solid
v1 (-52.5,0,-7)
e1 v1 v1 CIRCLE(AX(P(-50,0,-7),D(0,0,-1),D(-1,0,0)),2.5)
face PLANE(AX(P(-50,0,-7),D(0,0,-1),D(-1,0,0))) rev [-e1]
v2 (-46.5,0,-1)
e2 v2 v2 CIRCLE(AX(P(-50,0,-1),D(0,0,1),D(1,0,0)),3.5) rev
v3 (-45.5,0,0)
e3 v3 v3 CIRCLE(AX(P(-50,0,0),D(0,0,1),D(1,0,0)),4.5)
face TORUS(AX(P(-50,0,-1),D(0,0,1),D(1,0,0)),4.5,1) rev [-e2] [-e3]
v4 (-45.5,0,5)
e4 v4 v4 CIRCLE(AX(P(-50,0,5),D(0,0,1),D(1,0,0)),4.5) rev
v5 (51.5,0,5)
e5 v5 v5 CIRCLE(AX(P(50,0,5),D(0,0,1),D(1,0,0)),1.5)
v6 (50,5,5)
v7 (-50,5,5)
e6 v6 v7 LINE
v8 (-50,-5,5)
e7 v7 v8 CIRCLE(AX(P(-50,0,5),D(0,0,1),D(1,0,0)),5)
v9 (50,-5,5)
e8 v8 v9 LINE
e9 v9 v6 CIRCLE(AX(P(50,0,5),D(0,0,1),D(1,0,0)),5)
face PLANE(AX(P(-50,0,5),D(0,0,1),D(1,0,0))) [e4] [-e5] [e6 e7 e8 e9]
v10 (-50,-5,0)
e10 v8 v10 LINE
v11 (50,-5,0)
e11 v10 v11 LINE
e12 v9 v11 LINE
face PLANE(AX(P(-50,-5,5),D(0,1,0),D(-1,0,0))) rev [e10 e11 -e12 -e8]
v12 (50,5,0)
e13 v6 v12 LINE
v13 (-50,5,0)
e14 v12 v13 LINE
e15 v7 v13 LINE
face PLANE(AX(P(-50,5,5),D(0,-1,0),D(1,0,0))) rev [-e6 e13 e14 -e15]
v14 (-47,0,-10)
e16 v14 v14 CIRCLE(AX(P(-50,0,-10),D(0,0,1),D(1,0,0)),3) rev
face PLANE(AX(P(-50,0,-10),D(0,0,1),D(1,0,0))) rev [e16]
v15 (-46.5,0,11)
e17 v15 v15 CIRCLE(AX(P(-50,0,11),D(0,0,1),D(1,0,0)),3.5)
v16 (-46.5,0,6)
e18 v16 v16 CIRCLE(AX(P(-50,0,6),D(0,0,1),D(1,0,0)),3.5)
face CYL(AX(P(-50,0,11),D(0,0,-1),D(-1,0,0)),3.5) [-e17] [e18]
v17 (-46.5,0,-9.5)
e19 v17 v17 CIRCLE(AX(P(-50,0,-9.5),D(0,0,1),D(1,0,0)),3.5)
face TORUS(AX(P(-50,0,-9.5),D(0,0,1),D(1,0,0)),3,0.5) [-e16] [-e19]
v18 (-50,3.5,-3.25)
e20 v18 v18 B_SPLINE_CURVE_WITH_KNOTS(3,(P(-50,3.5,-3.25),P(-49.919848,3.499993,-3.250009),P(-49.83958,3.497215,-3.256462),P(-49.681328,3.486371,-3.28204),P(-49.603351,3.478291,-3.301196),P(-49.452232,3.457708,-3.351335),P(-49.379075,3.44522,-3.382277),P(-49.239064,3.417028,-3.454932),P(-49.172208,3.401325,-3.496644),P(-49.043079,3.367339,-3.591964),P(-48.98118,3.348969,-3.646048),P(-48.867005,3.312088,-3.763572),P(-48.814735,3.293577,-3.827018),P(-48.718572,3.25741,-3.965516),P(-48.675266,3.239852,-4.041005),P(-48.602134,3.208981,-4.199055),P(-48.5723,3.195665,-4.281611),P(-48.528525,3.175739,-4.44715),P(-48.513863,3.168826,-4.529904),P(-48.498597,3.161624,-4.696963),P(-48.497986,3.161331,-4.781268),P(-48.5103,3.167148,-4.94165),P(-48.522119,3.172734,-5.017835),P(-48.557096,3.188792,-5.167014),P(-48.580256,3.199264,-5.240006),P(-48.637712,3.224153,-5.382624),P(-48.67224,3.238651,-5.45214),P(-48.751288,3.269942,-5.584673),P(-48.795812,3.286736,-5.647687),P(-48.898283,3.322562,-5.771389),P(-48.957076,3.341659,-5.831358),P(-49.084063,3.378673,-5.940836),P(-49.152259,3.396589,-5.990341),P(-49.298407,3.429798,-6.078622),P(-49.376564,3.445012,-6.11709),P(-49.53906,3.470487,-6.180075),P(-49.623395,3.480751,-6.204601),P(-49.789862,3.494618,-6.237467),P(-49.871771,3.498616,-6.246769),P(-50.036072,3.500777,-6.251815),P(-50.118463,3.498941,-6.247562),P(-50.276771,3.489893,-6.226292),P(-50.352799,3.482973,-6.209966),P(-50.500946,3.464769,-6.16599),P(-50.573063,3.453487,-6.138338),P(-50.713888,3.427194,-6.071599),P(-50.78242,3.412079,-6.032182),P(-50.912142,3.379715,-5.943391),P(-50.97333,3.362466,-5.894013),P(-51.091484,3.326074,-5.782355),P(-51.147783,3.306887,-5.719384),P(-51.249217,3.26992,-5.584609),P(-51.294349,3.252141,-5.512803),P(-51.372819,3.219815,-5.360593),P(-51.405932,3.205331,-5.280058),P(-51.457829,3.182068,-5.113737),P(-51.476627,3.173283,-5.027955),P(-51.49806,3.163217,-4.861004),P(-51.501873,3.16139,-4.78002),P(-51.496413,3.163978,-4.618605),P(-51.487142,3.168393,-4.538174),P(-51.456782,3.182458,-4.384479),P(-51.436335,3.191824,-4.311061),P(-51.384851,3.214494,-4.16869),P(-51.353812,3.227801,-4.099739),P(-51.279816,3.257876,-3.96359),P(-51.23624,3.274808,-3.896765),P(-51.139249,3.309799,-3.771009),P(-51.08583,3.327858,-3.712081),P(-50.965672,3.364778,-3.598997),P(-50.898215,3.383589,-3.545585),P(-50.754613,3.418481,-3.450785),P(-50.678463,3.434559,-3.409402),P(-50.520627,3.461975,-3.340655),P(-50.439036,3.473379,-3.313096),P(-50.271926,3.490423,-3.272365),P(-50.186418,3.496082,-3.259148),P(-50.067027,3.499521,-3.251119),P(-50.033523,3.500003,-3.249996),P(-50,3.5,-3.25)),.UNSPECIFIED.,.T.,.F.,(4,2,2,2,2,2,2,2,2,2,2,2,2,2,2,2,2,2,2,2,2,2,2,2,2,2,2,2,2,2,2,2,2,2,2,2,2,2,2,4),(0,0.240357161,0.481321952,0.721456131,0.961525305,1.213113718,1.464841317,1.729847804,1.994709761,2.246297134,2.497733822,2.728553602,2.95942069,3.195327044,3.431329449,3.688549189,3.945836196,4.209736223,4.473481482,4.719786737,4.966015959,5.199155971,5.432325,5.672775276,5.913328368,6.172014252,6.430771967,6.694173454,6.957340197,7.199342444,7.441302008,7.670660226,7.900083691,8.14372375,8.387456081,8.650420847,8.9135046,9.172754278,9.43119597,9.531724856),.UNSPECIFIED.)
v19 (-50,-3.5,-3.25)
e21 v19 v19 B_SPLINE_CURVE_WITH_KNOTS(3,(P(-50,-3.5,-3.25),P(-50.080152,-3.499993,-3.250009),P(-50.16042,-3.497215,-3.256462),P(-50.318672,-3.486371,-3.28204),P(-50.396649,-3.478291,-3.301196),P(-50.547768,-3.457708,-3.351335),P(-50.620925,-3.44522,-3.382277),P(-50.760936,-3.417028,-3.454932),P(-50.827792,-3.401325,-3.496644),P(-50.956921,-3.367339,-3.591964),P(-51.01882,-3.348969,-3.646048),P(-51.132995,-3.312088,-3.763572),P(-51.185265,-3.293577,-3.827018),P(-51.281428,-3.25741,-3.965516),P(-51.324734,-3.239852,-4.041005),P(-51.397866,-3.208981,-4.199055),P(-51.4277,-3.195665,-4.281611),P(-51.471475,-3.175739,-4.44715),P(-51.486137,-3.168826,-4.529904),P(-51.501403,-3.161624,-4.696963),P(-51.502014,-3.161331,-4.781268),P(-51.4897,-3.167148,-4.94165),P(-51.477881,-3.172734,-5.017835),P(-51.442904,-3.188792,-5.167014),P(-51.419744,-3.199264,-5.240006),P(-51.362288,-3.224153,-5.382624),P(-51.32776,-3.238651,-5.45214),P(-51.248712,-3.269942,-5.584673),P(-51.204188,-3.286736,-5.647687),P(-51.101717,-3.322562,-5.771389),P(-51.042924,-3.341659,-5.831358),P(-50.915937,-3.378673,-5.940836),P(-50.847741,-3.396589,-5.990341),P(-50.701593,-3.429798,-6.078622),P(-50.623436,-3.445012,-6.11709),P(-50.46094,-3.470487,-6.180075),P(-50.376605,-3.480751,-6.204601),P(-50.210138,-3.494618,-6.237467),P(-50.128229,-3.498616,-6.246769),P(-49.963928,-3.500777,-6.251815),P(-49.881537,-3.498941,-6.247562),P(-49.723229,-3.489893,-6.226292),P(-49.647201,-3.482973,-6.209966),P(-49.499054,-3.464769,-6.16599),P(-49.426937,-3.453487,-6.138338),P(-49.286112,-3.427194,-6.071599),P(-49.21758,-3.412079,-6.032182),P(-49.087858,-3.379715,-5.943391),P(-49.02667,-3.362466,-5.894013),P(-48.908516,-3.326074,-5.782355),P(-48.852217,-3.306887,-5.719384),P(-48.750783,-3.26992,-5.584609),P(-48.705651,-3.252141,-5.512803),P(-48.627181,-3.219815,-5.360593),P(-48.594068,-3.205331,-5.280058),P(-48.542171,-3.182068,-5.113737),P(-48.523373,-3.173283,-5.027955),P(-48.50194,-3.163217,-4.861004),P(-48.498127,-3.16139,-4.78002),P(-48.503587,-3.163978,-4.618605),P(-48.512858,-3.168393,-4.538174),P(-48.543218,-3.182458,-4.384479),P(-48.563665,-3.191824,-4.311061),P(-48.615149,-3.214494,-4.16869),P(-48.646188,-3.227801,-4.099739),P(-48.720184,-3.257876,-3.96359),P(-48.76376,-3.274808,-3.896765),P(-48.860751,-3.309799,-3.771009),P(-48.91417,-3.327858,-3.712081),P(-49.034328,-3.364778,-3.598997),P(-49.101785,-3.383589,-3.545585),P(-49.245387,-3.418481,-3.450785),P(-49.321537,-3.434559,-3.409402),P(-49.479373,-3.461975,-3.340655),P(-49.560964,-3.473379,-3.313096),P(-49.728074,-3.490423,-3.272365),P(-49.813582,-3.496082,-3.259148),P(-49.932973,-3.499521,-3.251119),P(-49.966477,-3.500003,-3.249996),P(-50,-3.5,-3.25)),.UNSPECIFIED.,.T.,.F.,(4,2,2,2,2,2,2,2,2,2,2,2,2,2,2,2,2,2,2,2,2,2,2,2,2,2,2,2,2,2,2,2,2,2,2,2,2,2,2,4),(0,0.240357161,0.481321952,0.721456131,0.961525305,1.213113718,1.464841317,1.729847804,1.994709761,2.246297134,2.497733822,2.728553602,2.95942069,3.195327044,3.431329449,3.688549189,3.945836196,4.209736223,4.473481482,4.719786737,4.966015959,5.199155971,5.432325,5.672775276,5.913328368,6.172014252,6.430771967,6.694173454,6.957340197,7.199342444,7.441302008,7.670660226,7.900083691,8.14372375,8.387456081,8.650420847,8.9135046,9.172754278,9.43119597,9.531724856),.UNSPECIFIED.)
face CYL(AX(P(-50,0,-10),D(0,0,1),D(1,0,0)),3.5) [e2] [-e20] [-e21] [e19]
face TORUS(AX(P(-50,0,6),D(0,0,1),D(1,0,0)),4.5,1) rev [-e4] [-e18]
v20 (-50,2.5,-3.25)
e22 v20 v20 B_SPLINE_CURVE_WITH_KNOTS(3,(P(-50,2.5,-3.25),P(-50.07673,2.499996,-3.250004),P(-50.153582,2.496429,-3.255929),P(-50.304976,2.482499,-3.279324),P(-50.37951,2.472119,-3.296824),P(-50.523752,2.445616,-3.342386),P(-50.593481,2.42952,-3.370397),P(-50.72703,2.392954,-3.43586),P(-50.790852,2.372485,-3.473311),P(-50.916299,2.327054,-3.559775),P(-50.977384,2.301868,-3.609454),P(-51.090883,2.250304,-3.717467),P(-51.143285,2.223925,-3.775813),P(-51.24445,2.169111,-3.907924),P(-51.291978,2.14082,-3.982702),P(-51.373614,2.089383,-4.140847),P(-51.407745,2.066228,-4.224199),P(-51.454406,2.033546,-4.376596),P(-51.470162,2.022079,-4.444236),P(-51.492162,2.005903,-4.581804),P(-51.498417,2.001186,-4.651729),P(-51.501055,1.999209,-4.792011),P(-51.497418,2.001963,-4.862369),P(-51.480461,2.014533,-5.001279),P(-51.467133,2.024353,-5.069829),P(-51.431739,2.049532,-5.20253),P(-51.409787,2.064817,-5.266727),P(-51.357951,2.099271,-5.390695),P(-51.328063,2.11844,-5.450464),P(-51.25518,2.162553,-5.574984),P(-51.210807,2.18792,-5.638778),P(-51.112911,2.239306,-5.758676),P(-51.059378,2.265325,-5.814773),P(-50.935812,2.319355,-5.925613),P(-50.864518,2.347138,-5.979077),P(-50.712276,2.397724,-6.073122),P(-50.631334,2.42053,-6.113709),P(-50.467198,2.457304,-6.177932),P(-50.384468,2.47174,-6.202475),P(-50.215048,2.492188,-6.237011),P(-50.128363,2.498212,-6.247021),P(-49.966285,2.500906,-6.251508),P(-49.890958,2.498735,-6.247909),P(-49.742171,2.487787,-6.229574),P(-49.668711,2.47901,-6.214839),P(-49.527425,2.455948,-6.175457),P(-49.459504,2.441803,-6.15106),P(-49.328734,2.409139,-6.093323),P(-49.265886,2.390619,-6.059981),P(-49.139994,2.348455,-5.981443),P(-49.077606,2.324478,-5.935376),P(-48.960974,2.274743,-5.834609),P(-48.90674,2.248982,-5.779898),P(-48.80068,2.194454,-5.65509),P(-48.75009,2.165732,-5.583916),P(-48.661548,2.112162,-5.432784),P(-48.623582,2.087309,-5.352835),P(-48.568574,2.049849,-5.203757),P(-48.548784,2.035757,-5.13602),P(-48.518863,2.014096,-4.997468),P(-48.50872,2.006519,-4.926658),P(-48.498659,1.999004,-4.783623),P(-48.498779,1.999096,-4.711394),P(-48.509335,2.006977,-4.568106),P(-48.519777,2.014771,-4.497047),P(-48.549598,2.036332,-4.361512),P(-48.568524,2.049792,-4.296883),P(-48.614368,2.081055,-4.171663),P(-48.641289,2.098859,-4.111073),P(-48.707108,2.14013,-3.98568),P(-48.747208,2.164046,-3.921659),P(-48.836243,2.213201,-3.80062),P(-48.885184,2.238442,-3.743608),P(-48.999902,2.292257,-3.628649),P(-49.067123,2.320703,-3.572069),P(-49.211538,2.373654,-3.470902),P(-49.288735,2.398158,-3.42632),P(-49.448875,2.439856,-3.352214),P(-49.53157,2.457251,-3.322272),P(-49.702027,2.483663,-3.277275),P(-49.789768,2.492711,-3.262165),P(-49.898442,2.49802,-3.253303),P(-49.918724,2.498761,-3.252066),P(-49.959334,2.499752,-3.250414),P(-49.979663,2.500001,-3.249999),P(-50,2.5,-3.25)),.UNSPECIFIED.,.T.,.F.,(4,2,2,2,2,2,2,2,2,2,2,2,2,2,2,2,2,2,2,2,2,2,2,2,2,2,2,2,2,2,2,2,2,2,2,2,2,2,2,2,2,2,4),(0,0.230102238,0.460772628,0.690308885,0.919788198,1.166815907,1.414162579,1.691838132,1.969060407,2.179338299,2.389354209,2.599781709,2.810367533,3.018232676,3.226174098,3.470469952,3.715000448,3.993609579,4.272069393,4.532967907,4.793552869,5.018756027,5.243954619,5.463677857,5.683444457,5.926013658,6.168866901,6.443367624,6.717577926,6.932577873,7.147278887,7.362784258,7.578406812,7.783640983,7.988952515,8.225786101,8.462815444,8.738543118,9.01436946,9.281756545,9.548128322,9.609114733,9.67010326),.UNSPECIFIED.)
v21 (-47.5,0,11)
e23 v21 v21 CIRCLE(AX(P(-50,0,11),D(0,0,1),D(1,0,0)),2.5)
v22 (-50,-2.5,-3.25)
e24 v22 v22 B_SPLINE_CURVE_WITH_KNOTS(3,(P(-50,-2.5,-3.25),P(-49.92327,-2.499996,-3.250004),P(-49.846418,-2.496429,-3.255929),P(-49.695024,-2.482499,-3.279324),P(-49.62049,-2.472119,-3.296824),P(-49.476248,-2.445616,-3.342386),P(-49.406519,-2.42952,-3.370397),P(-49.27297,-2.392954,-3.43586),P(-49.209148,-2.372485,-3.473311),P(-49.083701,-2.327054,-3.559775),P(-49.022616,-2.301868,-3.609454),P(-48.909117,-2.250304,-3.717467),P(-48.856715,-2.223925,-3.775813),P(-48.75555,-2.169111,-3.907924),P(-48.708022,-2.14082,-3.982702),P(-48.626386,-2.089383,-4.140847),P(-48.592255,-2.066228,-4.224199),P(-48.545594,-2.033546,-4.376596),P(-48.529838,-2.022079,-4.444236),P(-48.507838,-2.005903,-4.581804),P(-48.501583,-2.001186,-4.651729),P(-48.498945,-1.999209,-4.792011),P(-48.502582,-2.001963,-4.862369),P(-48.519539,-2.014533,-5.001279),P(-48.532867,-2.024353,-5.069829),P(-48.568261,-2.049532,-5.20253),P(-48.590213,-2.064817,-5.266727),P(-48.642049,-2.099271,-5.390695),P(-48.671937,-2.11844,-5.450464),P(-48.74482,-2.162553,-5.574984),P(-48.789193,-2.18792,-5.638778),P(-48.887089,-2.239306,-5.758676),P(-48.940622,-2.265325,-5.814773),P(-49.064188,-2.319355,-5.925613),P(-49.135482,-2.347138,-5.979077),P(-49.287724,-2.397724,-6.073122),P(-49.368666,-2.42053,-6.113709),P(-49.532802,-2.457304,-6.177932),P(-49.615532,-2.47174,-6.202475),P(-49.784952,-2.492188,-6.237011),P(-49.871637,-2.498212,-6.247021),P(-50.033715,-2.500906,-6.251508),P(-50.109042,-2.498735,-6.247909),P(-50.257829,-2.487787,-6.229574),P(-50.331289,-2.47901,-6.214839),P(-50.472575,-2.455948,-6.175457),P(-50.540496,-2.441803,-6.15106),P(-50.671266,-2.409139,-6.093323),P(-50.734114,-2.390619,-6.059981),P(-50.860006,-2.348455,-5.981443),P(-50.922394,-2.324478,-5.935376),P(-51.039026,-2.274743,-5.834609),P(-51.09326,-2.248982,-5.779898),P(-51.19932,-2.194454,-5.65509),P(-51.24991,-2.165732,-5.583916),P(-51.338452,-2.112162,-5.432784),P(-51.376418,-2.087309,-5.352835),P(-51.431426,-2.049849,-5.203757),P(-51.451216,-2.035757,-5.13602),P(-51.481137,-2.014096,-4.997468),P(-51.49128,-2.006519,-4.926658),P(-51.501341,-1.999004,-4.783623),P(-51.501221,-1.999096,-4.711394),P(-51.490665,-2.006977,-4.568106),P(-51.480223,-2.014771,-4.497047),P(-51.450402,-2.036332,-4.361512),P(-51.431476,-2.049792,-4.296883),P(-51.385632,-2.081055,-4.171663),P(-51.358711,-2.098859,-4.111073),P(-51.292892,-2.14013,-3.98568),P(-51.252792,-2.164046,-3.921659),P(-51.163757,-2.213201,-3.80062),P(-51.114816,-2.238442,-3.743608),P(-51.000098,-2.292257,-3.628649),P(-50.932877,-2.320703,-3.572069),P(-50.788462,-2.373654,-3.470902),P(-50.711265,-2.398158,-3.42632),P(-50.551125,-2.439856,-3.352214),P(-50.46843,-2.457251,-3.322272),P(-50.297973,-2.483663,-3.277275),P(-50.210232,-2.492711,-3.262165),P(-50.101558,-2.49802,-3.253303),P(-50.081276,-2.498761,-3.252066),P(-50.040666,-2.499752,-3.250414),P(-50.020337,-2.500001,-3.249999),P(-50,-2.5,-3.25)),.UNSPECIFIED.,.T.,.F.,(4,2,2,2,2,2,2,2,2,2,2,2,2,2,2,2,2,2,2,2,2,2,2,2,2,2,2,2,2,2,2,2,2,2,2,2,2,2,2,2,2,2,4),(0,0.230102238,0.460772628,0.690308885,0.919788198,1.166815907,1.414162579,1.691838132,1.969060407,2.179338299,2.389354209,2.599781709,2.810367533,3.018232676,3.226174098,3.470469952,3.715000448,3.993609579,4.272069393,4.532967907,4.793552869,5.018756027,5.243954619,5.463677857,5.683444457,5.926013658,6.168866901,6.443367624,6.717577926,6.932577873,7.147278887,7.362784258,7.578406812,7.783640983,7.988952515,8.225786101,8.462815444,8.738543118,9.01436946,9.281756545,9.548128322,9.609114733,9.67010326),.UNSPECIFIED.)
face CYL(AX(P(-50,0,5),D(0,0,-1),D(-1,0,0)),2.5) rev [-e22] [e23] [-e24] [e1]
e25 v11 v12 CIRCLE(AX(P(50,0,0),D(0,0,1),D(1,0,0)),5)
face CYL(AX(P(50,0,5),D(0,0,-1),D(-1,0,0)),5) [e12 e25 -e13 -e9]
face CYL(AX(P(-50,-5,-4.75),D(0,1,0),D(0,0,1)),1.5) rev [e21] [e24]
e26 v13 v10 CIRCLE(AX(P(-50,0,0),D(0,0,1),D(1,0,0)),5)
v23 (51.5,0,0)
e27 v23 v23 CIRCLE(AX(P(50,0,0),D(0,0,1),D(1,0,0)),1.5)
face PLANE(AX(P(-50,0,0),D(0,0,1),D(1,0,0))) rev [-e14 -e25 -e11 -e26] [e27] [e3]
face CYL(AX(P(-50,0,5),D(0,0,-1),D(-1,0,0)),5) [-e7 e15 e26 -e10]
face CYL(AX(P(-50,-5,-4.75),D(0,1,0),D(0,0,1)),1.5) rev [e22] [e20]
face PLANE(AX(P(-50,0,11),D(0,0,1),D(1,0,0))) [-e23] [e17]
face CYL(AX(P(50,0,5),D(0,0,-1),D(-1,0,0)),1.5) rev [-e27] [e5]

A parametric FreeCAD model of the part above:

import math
import FreeCAD as App
import Part
import Sketcher
from FreeCAD import Vector


def edges_at(feature, points):
    """Names of the edges that pass closest to the given points."""
    edges = feature.Shape.Edges
    near = lambda p: min(range(len(edges)), key=lambda i: edges[i].distToShape(Part.Vertex(*p))[0])
    return sorted({f"Edge{near(p) + 1}" for p in points})

doc = App.newDocument("Part")
body = doc.addObject("PartDesign::Body", "Body")

# Sketch on XY plane
sketch1 = body.newObject("Sketcher::SketchObject", "Sketch")
sketch1.AttachmentSupport = (doc.getObject("XY_Plane"), [""])
sketch1.MapMode = "FlatFace"
sketch1.addGeometry([
    Part.LineSegment(Vector(50, 5, 0), Vector(-50, 5, 0)),  # 0
    Part.ArcOfCircle(Part.Circle(Vector(-50, 0, 0), Vector(0, 0, 1), 5), math.radians(90), math.radians(270)),  # 1
    Part.LineSegment(Vector(-50, -5, 0), Vector(50, -5, 0)),  # 2
    Part.ArcOfCircle(Part.Circle(Vector(50, 0, 0), Vector(0, 0, 1), 5), math.radians(-90), math.radians(90)),  # 3
    Part.Circle(Vector(50, 0, 0), Vector(0, 0, 1), 1.5),  # 4
    Part.Circle(Vector(-50, 0, 0), Vector(0, 0, 1), 2.5),  # 5
], False)
sketch1.addConstraint([
    Sketcher.Constraint("Tangent", 0, 2, 1, 1),
    Sketcher.Constraint("Tangent", 1, 2, 2, 1),
    Sketcher.Constraint("Tangent", 2, 2, 3, 1),
    Sketcher.Constraint("Tangent", 3, 2, 0, 1),
    Sketcher.Constraint("Horizontal", 0),
    Sketcher.Constraint("Horizontal", 2),
    Sketcher.Constraint("Coincident", 4, 3, 3, 3),
    Sketcher.Constraint("Coincident", 5, 3, 1, 3),
    Sketcher.Constraint("Symmetric", 1, 3, 3, 3, -1, 1),
    Sketcher.Constraint("Diameter", 4, 3.0),
    Sketcher.Constraint("Diameter", 5, 5.0),
    Sketcher.Constraint("Radius", 1, 5.0),
    Sketcher.Constraint("DistanceX", 0, 2, 0, 1, 100.0),
])
pad1 = body.newObject("PartDesign::Pad", "Pad")
pad1.Profile = sketch1
pad1.Length = 5

# Sketch on XY plane
sketch2 = body.newObject("Sketcher::SketchObject", "Sketch001")
sketch2.AttachmentSupport = (doc.getObject("XY_Plane"), [""])
sketch2.MapMode = "FlatFace"
sketch2.AttachmentOffset = App.Placement(Vector(0, 0, -10), App.Rotation())
sketch2.addGeometry([
    Part.Circle(Vector(-50, 0, 0), Vector(0, 0, 1), 3.5),
    Part.Circle(Vector(-50, 0, 0), Vector(0, 0, 1), 2.5),
], False)
sketch2.addConstraint([
    Sketcher.Constraint("Coincident", 1, 3, 0, 3),
    Sketcher.Constraint("PointOnObject", 0, 3, -1),
    Sketcher.Constraint("Diameter", 0, 7.0),
    Sketcher.Constraint("Diameter", 1, 5.0),
    Sketcher.Constraint("DistanceX", 0, 3, -1, 1, 50.0),
])
pad2 = body.newObject("PartDesign::Pad", "Pad001")
pad2.Profile = sketch2
pad2.Length = 10

# Sketch on XY plane
sketch3 = body.newObject("Sketcher::SketchObject", "Sketch002")
sketch3.AttachmentSupport = (doc.getObject("XY_Plane"), [""])
sketch3.MapMode = "FlatFace"
sketch3.AttachmentOffset = App.Placement(Vector(0, 0, -10), App.Rotation())
sketch3.addGeometry(Part.Circle(Vector(-50, 0, 0), Vector(0, 0, 1), 3.5), False)
sketch3.addConstraint([
    Sketcher.Constraint("PointOnObject", 0, 3, -1),
    Sketcher.Constraint("Diameter", 0, 7.0),
    Sketcher.Constraint("DistanceX", 0, 3, -1, 1, 50.0),
])
pad3 = body.newObject("PartDesign::Pad", "Pad002")
pad3.Profile = sketch3
pad3.Length = 3
doc.recompute()

fillet = body.newObject("PartDesign::Fillet", "Fillet")
fillet.Base = (pad3, edges_at(pad3, [(-53.5, 0, -10)]))
fillet.Radius = 0.5

# Sketch on XZ plane
sketch4 = body.newObject("Sketcher::SketchObject", "Sketch003")
sketch4.AttachmentSupport = (doc.getObject("XZ_Plane"), [""])
sketch4.MapMode = "FlatFace"
sketch4.addGeometry(Part.Circle(Vector(-50, -4.8, 0), Vector(0, 0, 1), 1.5), False)
sketch4.addConstraint([
    Sketcher.Constraint("Diameter", 0, 3.0),
    Sketcher.Constraint("DistanceX", 0, 3, -1, 1, 50.0),
    Sketcher.Constraint("DistanceY", 0, 3, -1, 1, 4.75),
])
pocket1 = body.newObject("PartDesign::Pocket", "Pocket")
pocket1.Profile = sketch4
pocket1.Type = "ThroughAll"
pocket1.Midplane = True

# Sketch on XY plane
sketch5 = body.newObject("Sketcher::SketchObject", "Sketch004")
sketch5.AttachmentSupport = (doc.getObject("XY_Plane"), [""])
sketch5.MapMode = "FlatFace"
sketch5.AttachmentOffset = App.Placement(Vector(0, 0, 5), App.Rotation())
sketch5.addGeometry([
    Part.Circle(Vector(-50, 0, 0), Vector(0, 0, 1), 3.5),
    Part.Circle(Vector(-50, 0, 0), Vector(0, 0, 1), 2.5),
], False)
sketch5.addConstraint([
    Sketcher.Constraint("Coincident", 1, 3, 0, 3),
    Sketcher.Constraint("PointOnObject", 0, 3, -1),
    Sketcher.Constraint("Diameter", 0, 7.0),
    Sketcher.Constraint("Diameter", 1, 5.0),
    Sketcher.Constraint("DistanceX", 0, 3, -1, 1, 50.0),
])
pad4 = body.newObject("PartDesign::Pad", "Pad003")
pad4.Profile = sketch5
pad4.Length = 6
doc.recompute()

fillet2 = body.newObject("PartDesign::Fillet", "Fillet001")
fillet2.Base = (pad4, edges_at(pad4, [(-53.5, 0, 5)]))
fillet2.Radius = 1
doc.recompute()

fillet3 = body.newObject("PartDesign::Fillet", "Fillet002")
fillet3.Base = (fillet2, edges_at(fillet2, [(-53.5, 0, 0)]))
fillet3.Radius = 1

doc.recompute()
